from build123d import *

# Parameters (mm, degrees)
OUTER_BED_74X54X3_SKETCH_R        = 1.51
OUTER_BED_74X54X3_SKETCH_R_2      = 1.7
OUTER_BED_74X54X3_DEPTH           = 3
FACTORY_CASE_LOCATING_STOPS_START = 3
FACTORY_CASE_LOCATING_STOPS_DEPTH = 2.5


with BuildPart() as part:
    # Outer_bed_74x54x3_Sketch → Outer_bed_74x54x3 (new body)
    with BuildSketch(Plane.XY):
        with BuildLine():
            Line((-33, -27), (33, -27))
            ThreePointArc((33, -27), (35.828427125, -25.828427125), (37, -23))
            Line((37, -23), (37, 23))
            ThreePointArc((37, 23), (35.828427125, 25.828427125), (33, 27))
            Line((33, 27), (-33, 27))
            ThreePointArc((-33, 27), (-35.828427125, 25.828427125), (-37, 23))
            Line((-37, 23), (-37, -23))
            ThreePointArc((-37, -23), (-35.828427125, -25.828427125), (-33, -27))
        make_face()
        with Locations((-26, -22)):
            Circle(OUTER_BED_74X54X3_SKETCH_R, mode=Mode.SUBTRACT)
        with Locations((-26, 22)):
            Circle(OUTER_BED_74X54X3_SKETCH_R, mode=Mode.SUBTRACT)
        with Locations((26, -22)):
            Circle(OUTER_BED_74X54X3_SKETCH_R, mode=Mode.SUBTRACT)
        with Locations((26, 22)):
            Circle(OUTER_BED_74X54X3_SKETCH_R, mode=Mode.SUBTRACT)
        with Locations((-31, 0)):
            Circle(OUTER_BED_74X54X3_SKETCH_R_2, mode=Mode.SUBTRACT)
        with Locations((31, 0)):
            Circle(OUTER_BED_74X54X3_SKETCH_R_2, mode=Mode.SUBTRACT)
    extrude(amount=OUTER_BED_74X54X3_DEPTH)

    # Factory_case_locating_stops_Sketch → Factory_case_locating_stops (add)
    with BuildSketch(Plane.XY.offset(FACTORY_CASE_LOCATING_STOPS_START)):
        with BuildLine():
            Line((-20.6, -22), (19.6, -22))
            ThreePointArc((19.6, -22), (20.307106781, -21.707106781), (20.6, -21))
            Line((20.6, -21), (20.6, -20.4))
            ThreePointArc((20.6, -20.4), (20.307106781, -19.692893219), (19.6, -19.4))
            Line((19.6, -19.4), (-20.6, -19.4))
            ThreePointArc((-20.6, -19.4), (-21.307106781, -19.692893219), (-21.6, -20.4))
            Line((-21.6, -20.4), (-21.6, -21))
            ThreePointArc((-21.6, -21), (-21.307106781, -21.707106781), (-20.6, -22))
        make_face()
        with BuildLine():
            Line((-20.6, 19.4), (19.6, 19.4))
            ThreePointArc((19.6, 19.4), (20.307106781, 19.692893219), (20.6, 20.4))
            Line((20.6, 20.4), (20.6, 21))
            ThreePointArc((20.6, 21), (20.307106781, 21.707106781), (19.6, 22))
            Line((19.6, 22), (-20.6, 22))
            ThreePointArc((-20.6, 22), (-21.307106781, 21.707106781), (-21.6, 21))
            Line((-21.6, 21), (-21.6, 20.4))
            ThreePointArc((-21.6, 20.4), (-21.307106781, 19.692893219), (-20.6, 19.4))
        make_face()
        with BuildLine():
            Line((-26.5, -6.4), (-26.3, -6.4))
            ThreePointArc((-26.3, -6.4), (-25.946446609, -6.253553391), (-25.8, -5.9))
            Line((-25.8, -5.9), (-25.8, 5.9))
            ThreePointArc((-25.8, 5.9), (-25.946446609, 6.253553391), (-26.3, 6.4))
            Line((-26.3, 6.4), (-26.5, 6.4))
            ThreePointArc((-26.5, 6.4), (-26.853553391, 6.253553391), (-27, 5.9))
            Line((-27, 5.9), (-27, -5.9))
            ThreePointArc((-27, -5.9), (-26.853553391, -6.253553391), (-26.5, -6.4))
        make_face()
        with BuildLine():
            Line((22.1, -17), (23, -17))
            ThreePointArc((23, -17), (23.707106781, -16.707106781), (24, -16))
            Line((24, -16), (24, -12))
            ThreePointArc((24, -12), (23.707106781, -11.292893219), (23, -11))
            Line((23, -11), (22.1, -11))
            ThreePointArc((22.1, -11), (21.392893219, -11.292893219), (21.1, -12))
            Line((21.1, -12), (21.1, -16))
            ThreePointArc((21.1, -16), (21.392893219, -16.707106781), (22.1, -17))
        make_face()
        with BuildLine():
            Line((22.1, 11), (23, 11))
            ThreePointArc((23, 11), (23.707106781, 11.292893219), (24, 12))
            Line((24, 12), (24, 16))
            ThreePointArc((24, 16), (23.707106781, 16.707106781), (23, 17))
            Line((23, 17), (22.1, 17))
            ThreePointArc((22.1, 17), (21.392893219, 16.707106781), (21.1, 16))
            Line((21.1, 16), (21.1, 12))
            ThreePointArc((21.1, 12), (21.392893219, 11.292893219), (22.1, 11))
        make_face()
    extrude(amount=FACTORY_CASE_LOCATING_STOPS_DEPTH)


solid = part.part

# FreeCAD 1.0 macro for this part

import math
import FreeCAD as App
import Part
import Sketcher
from FreeCAD import Vector

doc = App.newDocument("Part")
body = doc.addObject("PartDesign::Body", "Body")

sketch1 = body.newObject("Sketcher::SketchObject", "Sketch")
sketch1.AttachmentSupport = (doc.getObject("XY_Plane"), [""])
sketch1.MapMode = "FlatFace"
sketch1.addGeometry(Part.LineSegment(Vector(-33, -27, 0), Vector(33, -27, 0)), False)
sketch1.addGeometry(Part.ArcOfCircle(Part.Circle(Vector(33, -23, 0), Vector(0, 0, 1), 4), math.radians(-90), math.radians(0)), False)
sketch1.addGeometry(Part.LineSegment(Vector(37, -23, 0), Vector(37, 23, 0)), False)
sketch1.addGeometry(Part.ArcOfCircle(Part.Circle(Vector(33, 23, 0), Vector(0, 0, 1), 4), math.radians(0), math.radians(90)), False)
sketch1.addGeometry(Part.LineSegment(Vector(33, 27, 0), Vector(-33, 27, 0)), False)
sketch1.addGeometry(Part.ArcOfCircle(Part.Circle(Vector(-33, 23, 0), Vector(0, 0, 1), 4), math.radians(90), math.radians(180)), False)
sketch1.addGeometry(Part.LineSegment(Vector(-37, 23, 0), Vector(-37, -23, 0)), False)
sketch1.addGeometry(Part.ArcOfCircle(Part.Circle(Vector(-33, -23, 0), Vector(0, 0, 1), 4), math.radians(180), math.radians(270)), False)
sketch1.addGeometry(Part.Circle(Vector(-26, -22, 0), Vector(0, 0, 1), 1.51), False)
sketch1.addGeometry(Part.Circle(Vector(26, -22, 0), Vector(0, 0, 1), 1.51), False)
sketch1.addGeometry(Part.Circle(Vector(-31, 0, 0), Vector(0, 0, 1), 1.7), False)
sketch1.addGeometry(Part.Circle(Vector(-26, 22, 0), Vector(0, 0, 1), 1.51), False)
sketch1.addGeometry(Part.Circle(Vector(31, 0, 0), Vector(0, 0, 1), 1.7), False)
sketch1.addGeometry(Part.Circle(Vector(26, 22, 0), Vector(0, 0, 1), 1.51), False)
sketch1.addConstraint(Sketcher.Constraint("Tangent", 0, 2, 1, 1))
sketch1.addConstraint(Sketcher.Constraint("Tangent", 1, 2, 2, 1))
sketch1.addConstraint(Sketcher.Constraint("Tangent", 2, 2, 3, 1))
sketch1.addConstraint(Sketcher.Constraint("Tangent", 3, 2, 4, 1))
sketch1.addConstraint(Sketcher.Constraint("Tangent", 4, 2, 5, 1))
sketch1.addConstraint(Sketcher.Constraint("Tangent", 5, 2, 6, 1))
sketch1.addConstraint(Sketcher.Constraint("Tangent", 6, 2, 7, 1))
sketch1.addConstraint(Sketcher.Constraint("Tangent", 7, 2, 0, 1))
sketch1.addConstraint(Sketcher.Constraint("Horizontal", 0))
sketch1.addConstraint(Sketcher.Constraint("Vertical", 2))
sketch1.addConstraint(Sketcher.Constraint("Horizontal", 4))
sketch1.addConstraint(Sketcher.Constraint("Vertical", 6))
sketch1.addConstraint(Sketcher.Constraint("Equal", 1, 3))
sketch1.addConstraint(Sketcher.Constraint("Equal", 3, 5))
sketch1.addConstraint(Sketcher.Constraint("Equal", 5, 7))
sketch1.addConstraint(Sketcher.Constraint("Equal", 8, 9))
sketch1.addConstraint(Sketcher.Constraint("Equal", 9, 11))
sketch1.addConstraint(Sketcher.Constraint("Equal", 10, 12))
sketch1.addConstraint(Sketcher.Constraint("Equal", 11, 13))
sketch1.addConstraint(Sketcher.Constraint("Symmetric", 1, 3, 5, 3, -1, 1))
sketch1.addConstraint(Sketcher.Constraint("Symmetric", 9, 3, 11, 3, -1, 1))
sketch1.addConstraint(Sketcher.Constraint("Symmetric", 10, 3, 12, 3, -1, 1))
sketch1.addConstraint(Sketcher.Constraint("Symmetric", 8, 3, 13, 3, -1, 1))
sketch1.addConstraint(Sketcher.Constraint("Symmetric", 8, 3, 9, 3, -2))
sketch1.addConstraint(Sketcher.Constraint("PointOnObject", 10, 3, -1))
sketch1.addConstraint(Sketcher.Constraint("Radius", 1, 4.0))
sketch1.addConstraint(Sketcher.Constraint("Diameter", 10, 3.4))
sketch1.addConstraint(Sketcher.Constraint("Diameter", 8, 3.02))
sketch1.addConstraint(Sketcher.Constraint("DistanceX", 0, 1, 0, 2, 66.0))
sketch1.addConstraint(Sketcher.Constraint("DistanceY", 2, 1, 2, 2, 46.0))
sketch1.addConstraint(Sketcher.Constraint("DistanceX", 8, 3, -1, 1, 26.0))
sketch1.addConstraint(Sketcher.Constraint("DistanceY", 8, 3, -1, 1, 22.0))
sketch1.addConstraint(Sketcher.Constraint("DistanceX", 10, 3, -1, 1, 31.0))
pad1 = body.newObject("PartDesign::Pad", "Pad")
pad1.Profile = sketch1
pad1.Length = 3

sketch2 = body.newObject("Sketcher::SketchObject", "Sketch001")
sketch2.AttachmentSupport = (doc.getObject("XY_Plane"), [""])
sketch2.MapMode = "FlatFace"
sketch2.AttachmentOffset = App.Placement(Vector(0, 0, 3), App.Rotation())
sketch2.addGeometry(Part.LineSegment(Vector(-20.6, -22, 0), Vector(19.6, -22, 0)), False)
sketch2.addGeometry(Part.ArcOfCircle(Part.Circle(Vector(19.6, -21, 0), Vector(0, 0, 1), 1), math.radians(-90), math.radians(0)), False)
sketch2.addGeometry(Part.LineSegment(Vector(20.6, -21, 0), Vector(20.6, -20.4, 0)), False)
sketch2.addGeometry(Part.ArcOfCircle(Part.Circle(Vector(19.6, -20.4, 0), Vector(0, 0, 1), 1), math.radians(0), math.radians(90)), False)
sketch2.addGeometry(Part.LineSegment(Vector(19.6, -19.4, 0), Vector(-20.6, -19.4, 0)), False)
sketch2.addGeometry(Part.ArcOfCircle(Part.Circle(Vector(-20.6, -20.4, 0), Vector(0, 0, 1), 1), math.radians(90), math.radians(180)), False)
sketch2.addGeometry(Part.LineSegment(Vector(-21.6, -20.4, 0), Vector(-21.6, -21, 0)), False)
sketch2.addGeometry(Part.ArcOfCircle(Part.Circle(Vector(-20.6, -21, 0), Vector(0, 0, 1), 1), math.radians(-180), math.radians(-90)), False)
sketch2.addGeometry(Part.LineSegment(Vector(-20.6, 19.4, 0), Vector(19.6, 19.4, 0)), False)
sketch2.addGeometry(Part.ArcOfCircle(Part.Circle(Vector(19.6, 20.4, 0), Vector(0, 0, 1), 1), math.radians(-90), math.radians(0)), False)
sketch2.addGeometry(Part.LineSegment(Vector(20.6, 20.4, 0), Vector(20.6, 21, 0)), False)
sketch2.addGeometry(Part.ArcOfCircle(Part.Circle(Vector(19.6, 21, 0), Vector(0, 0, 1), 1), math.radians(0), math.radians(90)), False)
sketch2.addGeometry(Part.LineSegment(Vector(19.6, 22, 0), Vector(-20.6, 22, 0)), False)
sketch2.addGeometry(Part.ArcOfCircle(Part.Circle(Vector(-20.6, 21, 0), Vector(0, 0, 1), 1), math.radians(90), math.radians(180)), False)
sketch2.addGeometry(Part.LineSegment(Vector(-21.6, 21, 0), Vector(-21.6, 20.4, 0)), False)
sketch2.addGeometry(Part.ArcOfCircle(Part.Circle(Vector(-20.6, 20.4, 0), Vector(0, 0, 1), 1), math.radians(-180), math.radians(-90)), False)
sketch2.addGeometry(Part.LineSegment(Vector(-26.5, -6.4, 0), Vector(-26.3, -6.4, 0)), False)
sketch2.addGeometry(Part.ArcOfCircle(Part.Circle(Vector(-26.3, -5.9, 0), Vector(0, 0, 1), 0.5), math.radians(-90), math.radians(0)), False)
sketch2.addGeometry(Part.LineSegment(Vector(-25.8, -5.9, 0), Vector(-25.8, 5.9, 0)), False)
sketch2.addGeometry(Part.ArcOfCircle(Part.Circle(Vector(-26.3, 5.9, 0), Vector(0, 0, 1), 0.5), math.radians(0), math.radians(90)), False)
sketch2.addGeometry(Part.LineSegment(Vector(-26.3, 6.4, 0), Vector(-26.5, 6.4, 0)), False)
sketch2.addGeometry(Part.ArcOfCircle(Part.Circle(Vector(-26.5, 5.9, 0), Vector(0, 0, 1), 0.5), math.radians(90), math.radians(180)), False)
sketch2.addGeometry(Part.LineSegment(Vector(-27, 5.9, 0), Vector(-27, -5.9, 0)), False)
sketch2.addGeometry(Part.ArcOfCircle(Part.Circle(Vector(-26.5, -5.9, 0), Vector(0, 0, 1), 0.5), math.radians(180), math.radians(270)), False)
sketch2.addGeometry(Part.LineSegment(Vector(22.1, -17, 0), Vector(23, -17, 0)), False)
sketch2.addGeometry(Part.ArcOfCircle(Part.Circle(Vector(23, -16, 0), Vector(0, 0, 1), 1), math.radians(-90), math.radians(0)), False)
sketch2.addGeometry(Part.LineSegment(Vector(24, -16, 0), Vector(24, -12, 0)), False)
sketch2.addGeometry(Part.ArcOfCircle(Part.Circle(Vector(23, -12, 0), Vector(0, 0, 1), 1), math.radians(0), math.radians(90)), False)
sketch2.addGeometry(Part.LineSegment(Vector(23, -11, 0), Vector(22.1, -11, 0)), False)
sketch2.addGeometry(Part.ArcOfCircle(Part.Circle(Vector(22.1, -12, 0), Vector(0, 0, 1), 1), math.radians(90), math.radians(180)), False)
sketch2.addGeometry(Part.LineSegment(Vector(21.1, -12, 0), Vector(21.1, -16, 0)), False)
sketch2.addGeometry(Part.ArcOfCircle(Part.Circle(Vector(22.1, -16, 0), Vector(0, 0, 1), 1), math.radians(-180), math.radians(-90)), False)
sketch2.addGeometry(Part.LineSegment(Vector(22.1, 11, 0), Vector(23, 11, 0)), False)
sketch2.addGeometry(Part.ArcOfCircle(Part.Circle(Vector(23, 12, 0), Vector(0, 0, 1), 1), math.radians(-90), math.radians(0)), False)
sketch2.addGeometry(Part.LineSegment(Vector(24, 12, 0), Vector(24, 16, 0)), False)
sketch2.addGeometry(Part.ArcOfCircle(Part.Circle(Vector(23, 16, 0), Vector(0, 0, 1), 1), math.radians(0), math.radians(90)), False)
sketch2.addGeometry(Part.LineSegment(Vector(23, 17, 0), Vector(22.1, 17, 0)), False)
sketch2.addGeometry(Part.ArcOfCircle(Part.Circle(Vector(22.1, 16, 0), Vector(0, 0, 1), 1), math.radians(90), math.radians(180)), False)
sketch2.addGeometry(Part.LineSegment(Vector(21.1, 16, 0), Vector(21.1, 12, 0)), False)
sketch2.addGeometry(Part.ArcOfCircle(Part.Circle(Vector(22.1, 12, 0), Vector(0, 0, 1), 1), math.radians(-180), math.radians(-90)), False)
sketch2.addConstraint(Sketcher.Constraint("Tangent", 0, 2, 1, 1))
sketch2.addConstraint(Sketcher.Constraint("Tangent", 1, 2, 2, 1))
sketch2.addConstraint(Sketcher.Constraint("Tangent", 2, 2, 3, 1))
sketch2.addConstraint(Sketcher.Constraint("Tangent", 3, 2, 4, 1))
sketch2.addConstraint(Sketcher.Constraint("Tangent", 4, 2, 5, 1))
sketch2.addConstraint(Sketcher.Constraint("Tangent", 5, 2, 6, 1))
sketch2.addConstraint(Sketcher.Constraint("Tangent", 6, 2, 7, 1))
sketch2.addConstraint(Sketcher.Constraint("Tangent", 7, 2, 0, 1))
sketch2.addConstraint(Sketcher.Constraint("Tangent", 8, 2, 9, 1))
sketch2.addConstraint(Sketcher.Constraint("Tangent", 9, 2, 10, 1))
sketch2.addConstraint(Sketcher.Constraint("Tangent", 10, 2, 11, 1))
sketch2.addConstraint(Sketcher.Constraint("Tangent", 11, 2, 12, 1))
sketch2.addConstraint(Sketcher.Constraint("Tangent", 12, 2, 13, 1))
sketch2.addConstraint(Sketcher.Constraint("Tangent", 13, 2, 14, 1))
sketch2.addConstraint(Sketcher.Constraint("Tangent", 14, 2, 15, 1))
sketch2.addConstraint(Sketcher.Constraint("Tangent", 15, 2, 8, 1))
sketch2.addConstraint(Sketcher.Constraint("Tangent", 16, 2, 17, 1))
sketch2.addConstraint(Sketcher.Constraint("Tangent", 17, 2, 18, 1))
sketch2.addConstraint(Sketcher.Constraint("Tangent", 18, 2, 19, 1))
sketch2.addConstraint(Sketcher.Constraint("Tangent", 19, 2, 20, 1))
sketch2.addConstraint(Sketcher.Constraint("Tangent", 20, 2, 21, 1))
sketch2.addConstraint(Sketcher.Constraint("Tangent", 21, 2, 22, 1))
sketch2.addConstraint(Sketcher.Constraint("Tangent", 22, 2, 23, 1))
sketch2.addConstraint(Sketcher.Constraint("Tangent", 23, 2, 16, 1))
sketch2.addConstraint(Sketcher.Constraint("Tangent", 24, 2, 25, 1))
sketch2.addConstraint(Sketcher.Constraint("Tangent", 25, 2, 26, 1))
sketch2.addConstraint(Sketcher.Constraint("Tangent", 26, 2, 27, 1))
sketch2.addConstraint(Sketcher.Constraint("Tangent", 27, 2, 28, 1))
sketch2.addConstraint(Sketcher.Constraint("Tangent", 28, 2, 29, 1))
sketch2.addConstraint(Sketcher.Constraint("Tangent", 29, 2, 30, 1))
sketch2.addConstraint(Sketcher.Constraint("Tangent", 30, 2, 31, 1))
sketch2.addConstraint(Sketcher.Constraint("Tangent", 31, 2, 24, 1))
sketch2.addConstraint(Sketcher.Constraint("Tangent", 32, 2, 33, 1))
sketch2.addConstraint(Sketcher.Constraint("Tangent", 33, 2, 34, 1))
sketch2.addConstraint(Sketcher.Constraint("Tangent", 34, 2, 35, 1))
sketch2.addConstraint(Sketcher.Constraint("Tangent", 35, 2, 36, 1))
sketch2.addConstraint(Sketcher.Constraint("Tangent", 36, 2, 37, 1))
sketch2.addConstraint(Sketcher.Constraint("Tangent", 37, 2, 38, 1))
sketch2.addConstraint(Sketcher.Constraint("Tangent", 38, 2, 39, 1))
sketch2.addConstraint(Sketcher.Constraint("Tangent", 39, 2, 32, 1))
sketch2.addConstraint(Sketcher.Constraint("Horizontal", 0))
sketch2.addConstraint(Sketcher.Constraint("Vertical", 2))
sketch2.addConstraint(Sketcher.Constraint("Horizontal", 4))
sketch2.addConstraint(Sketcher.Constraint("Vertical", 6))
sketch2.addConstraint(Sketcher.Constraint("Horizontal", 8))
sketch2.addConstraint(Sketcher.Constraint("Vertical", 10))
sketch2.addConstraint(Sketcher.Constraint("Horizontal", 12))
sketch2.addConstraint(Sketcher.Constraint("Vertical", 14))
sketch2.addConstraint(Sketcher.Constraint("Horizontal", 16))
sketch2.addConstraint(Sketcher.Constraint("Vertical", 18))
sketch2.addConstraint(Sketcher.Constraint("Horizontal", 20))
sketch2.addConstraint(Sketcher.Constraint("Vertical", 22))
sketch2.addConstraint(Sketcher.Constraint("Horizontal", 24))
sketch2.addConstraint(Sketcher.Constraint("Vertical", 26))
sketch2.addConstraint(Sketcher.Constraint("Horizontal", 28))
sketch2.addConstraint(Sketcher.Constraint("Vertical", 30))
sketch2.addConstraint(Sketcher.Constraint("Horizontal", 32))
sketch2.addConstraint(Sketcher.Constraint("Vertical", 34))
sketch2.addConstraint(Sketcher.Constraint("Horizontal", 36))
sketch2.addConstraint(Sketcher.Constraint("Vertical", 38))
sketch2.addConstraint(Sketcher.Constraint("Equal", 1, 3))
sketch2.addConstraint(Sketcher.Constraint("Equal", 3, 5))
sketch2.addConstraint(Sketcher.Constraint("Equal", 5, 7))
sketch2.addConstraint(Sketcher.Constraint("Equal", 7, 9))
sketch2.addConstraint(Sketcher.Constraint("Equal", 9, 11))
sketch2.addConstraint(Sketcher.Constraint("Equal", 11, 13))
sketch2.addConstraint(Sketcher.Constraint("Equal", 13, 15))
sketch2.addConstraint(Sketcher.Constraint("Equal", 17, 19))
sketch2.addConstraint(Sketcher.Constraint("Equal", 19, 21))
sketch2.addConstraint(Sketcher.Constraint("Equal", 21, 23))
sketch2.addConstraint(Sketcher.Constraint("Equal", 15, 25))
sketch2.addConstraint(Sketcher.Constraint("Equal", 25, 27))
sketch2.addConstraint(Sketcher.Constraint("Equal", 27, 29))
sketch2.addConstraint(Sketcher.Constraint("Equal", 29, 31))
sketch2.addConstraint(Sketcher.Constraint("Equal", 31, 33))
sketch2.addConstraint(Sketcher.Constraint("Equal", 33, 35))
sketch2.addConstraint(Sketcher.Constraint("Equal", 35, 37))
sketch2.addConstraint(Sketcher.Constraint("Equal", 37, 39))
sketch2.addConstraint(Sketcher.Constraint("Symmetric", 3, 3, 9, 3, -1))
sketch2.addConstraint(Sketcher.Constraint("Symmetric", 7, 3, 13, 3, -1))
sketch2.addConstraint(Sketcher.Constraint("Symmetric", 27, 3, 33, 3, -1))
sketch2.addConstraint(Sketcher.Constraint("Symmetric", 31, 3, 37, 3, -1))
sketch2.addConstraint(Sketcher.Constraint("Radius", 1, 1.0))
sketch2.addConstraint(Sketcher.Constraint("Radius", 17, 0.5))
sketch2.addConstraint(Sketcher.Constraint("DistanceY", 26, 1, 26, 2, 4.0))
sketch2.addConstraint(Sketcher.Constraint("DistanceX", 0, 1, 0, 2, 40.2))
sketch2.addConstraint(Sketcher.Constraint("DistanceX", 16, 1, 16, 2, 0.2))
sketch2.addConstraint(Sketcher.Constraint("DistanceX", 24, 1, 24, 2, 0.9))
sketch2.addConstraint(Sketcher.Constraint("DistanceY", 2, 1, 2, 2, 0.6))
sketch2.addConstraint(Sketcher.Constraint("DistanceY", 18, 1, 18, 2, 11.8))
sketch2.addConstraint(Sketcher.Constraint("DistanceY", 1, 3, -1, 1, 21.0))
sketch2.addConstraint(Sketcher.Constraint("DistanceX", -1, 1, 25, 3, 23.0))
sketch2.addConstraint(Sketcher.Constraint("DistanceY", 25, 3, -1, 1, 16.0))
sketch2.addConstraint(Sketcher.Constraint("DistanceX", 21, 2, -1, 1, 27.0))
sketch2.addConstraint(Sketcher.Constraint("DistanceY", 4, 2, 16, 2, 13.0))
sketch2.addConstraint(Sketcher.Constraint("DistanceX", -1, 1, 1, 3, 19.6))
pad2 = body.newObject("PartDesign::Pad", "Pad001")
pad2.Profile = sketch2
pad2.Length = 2.5

doc.recompute()
